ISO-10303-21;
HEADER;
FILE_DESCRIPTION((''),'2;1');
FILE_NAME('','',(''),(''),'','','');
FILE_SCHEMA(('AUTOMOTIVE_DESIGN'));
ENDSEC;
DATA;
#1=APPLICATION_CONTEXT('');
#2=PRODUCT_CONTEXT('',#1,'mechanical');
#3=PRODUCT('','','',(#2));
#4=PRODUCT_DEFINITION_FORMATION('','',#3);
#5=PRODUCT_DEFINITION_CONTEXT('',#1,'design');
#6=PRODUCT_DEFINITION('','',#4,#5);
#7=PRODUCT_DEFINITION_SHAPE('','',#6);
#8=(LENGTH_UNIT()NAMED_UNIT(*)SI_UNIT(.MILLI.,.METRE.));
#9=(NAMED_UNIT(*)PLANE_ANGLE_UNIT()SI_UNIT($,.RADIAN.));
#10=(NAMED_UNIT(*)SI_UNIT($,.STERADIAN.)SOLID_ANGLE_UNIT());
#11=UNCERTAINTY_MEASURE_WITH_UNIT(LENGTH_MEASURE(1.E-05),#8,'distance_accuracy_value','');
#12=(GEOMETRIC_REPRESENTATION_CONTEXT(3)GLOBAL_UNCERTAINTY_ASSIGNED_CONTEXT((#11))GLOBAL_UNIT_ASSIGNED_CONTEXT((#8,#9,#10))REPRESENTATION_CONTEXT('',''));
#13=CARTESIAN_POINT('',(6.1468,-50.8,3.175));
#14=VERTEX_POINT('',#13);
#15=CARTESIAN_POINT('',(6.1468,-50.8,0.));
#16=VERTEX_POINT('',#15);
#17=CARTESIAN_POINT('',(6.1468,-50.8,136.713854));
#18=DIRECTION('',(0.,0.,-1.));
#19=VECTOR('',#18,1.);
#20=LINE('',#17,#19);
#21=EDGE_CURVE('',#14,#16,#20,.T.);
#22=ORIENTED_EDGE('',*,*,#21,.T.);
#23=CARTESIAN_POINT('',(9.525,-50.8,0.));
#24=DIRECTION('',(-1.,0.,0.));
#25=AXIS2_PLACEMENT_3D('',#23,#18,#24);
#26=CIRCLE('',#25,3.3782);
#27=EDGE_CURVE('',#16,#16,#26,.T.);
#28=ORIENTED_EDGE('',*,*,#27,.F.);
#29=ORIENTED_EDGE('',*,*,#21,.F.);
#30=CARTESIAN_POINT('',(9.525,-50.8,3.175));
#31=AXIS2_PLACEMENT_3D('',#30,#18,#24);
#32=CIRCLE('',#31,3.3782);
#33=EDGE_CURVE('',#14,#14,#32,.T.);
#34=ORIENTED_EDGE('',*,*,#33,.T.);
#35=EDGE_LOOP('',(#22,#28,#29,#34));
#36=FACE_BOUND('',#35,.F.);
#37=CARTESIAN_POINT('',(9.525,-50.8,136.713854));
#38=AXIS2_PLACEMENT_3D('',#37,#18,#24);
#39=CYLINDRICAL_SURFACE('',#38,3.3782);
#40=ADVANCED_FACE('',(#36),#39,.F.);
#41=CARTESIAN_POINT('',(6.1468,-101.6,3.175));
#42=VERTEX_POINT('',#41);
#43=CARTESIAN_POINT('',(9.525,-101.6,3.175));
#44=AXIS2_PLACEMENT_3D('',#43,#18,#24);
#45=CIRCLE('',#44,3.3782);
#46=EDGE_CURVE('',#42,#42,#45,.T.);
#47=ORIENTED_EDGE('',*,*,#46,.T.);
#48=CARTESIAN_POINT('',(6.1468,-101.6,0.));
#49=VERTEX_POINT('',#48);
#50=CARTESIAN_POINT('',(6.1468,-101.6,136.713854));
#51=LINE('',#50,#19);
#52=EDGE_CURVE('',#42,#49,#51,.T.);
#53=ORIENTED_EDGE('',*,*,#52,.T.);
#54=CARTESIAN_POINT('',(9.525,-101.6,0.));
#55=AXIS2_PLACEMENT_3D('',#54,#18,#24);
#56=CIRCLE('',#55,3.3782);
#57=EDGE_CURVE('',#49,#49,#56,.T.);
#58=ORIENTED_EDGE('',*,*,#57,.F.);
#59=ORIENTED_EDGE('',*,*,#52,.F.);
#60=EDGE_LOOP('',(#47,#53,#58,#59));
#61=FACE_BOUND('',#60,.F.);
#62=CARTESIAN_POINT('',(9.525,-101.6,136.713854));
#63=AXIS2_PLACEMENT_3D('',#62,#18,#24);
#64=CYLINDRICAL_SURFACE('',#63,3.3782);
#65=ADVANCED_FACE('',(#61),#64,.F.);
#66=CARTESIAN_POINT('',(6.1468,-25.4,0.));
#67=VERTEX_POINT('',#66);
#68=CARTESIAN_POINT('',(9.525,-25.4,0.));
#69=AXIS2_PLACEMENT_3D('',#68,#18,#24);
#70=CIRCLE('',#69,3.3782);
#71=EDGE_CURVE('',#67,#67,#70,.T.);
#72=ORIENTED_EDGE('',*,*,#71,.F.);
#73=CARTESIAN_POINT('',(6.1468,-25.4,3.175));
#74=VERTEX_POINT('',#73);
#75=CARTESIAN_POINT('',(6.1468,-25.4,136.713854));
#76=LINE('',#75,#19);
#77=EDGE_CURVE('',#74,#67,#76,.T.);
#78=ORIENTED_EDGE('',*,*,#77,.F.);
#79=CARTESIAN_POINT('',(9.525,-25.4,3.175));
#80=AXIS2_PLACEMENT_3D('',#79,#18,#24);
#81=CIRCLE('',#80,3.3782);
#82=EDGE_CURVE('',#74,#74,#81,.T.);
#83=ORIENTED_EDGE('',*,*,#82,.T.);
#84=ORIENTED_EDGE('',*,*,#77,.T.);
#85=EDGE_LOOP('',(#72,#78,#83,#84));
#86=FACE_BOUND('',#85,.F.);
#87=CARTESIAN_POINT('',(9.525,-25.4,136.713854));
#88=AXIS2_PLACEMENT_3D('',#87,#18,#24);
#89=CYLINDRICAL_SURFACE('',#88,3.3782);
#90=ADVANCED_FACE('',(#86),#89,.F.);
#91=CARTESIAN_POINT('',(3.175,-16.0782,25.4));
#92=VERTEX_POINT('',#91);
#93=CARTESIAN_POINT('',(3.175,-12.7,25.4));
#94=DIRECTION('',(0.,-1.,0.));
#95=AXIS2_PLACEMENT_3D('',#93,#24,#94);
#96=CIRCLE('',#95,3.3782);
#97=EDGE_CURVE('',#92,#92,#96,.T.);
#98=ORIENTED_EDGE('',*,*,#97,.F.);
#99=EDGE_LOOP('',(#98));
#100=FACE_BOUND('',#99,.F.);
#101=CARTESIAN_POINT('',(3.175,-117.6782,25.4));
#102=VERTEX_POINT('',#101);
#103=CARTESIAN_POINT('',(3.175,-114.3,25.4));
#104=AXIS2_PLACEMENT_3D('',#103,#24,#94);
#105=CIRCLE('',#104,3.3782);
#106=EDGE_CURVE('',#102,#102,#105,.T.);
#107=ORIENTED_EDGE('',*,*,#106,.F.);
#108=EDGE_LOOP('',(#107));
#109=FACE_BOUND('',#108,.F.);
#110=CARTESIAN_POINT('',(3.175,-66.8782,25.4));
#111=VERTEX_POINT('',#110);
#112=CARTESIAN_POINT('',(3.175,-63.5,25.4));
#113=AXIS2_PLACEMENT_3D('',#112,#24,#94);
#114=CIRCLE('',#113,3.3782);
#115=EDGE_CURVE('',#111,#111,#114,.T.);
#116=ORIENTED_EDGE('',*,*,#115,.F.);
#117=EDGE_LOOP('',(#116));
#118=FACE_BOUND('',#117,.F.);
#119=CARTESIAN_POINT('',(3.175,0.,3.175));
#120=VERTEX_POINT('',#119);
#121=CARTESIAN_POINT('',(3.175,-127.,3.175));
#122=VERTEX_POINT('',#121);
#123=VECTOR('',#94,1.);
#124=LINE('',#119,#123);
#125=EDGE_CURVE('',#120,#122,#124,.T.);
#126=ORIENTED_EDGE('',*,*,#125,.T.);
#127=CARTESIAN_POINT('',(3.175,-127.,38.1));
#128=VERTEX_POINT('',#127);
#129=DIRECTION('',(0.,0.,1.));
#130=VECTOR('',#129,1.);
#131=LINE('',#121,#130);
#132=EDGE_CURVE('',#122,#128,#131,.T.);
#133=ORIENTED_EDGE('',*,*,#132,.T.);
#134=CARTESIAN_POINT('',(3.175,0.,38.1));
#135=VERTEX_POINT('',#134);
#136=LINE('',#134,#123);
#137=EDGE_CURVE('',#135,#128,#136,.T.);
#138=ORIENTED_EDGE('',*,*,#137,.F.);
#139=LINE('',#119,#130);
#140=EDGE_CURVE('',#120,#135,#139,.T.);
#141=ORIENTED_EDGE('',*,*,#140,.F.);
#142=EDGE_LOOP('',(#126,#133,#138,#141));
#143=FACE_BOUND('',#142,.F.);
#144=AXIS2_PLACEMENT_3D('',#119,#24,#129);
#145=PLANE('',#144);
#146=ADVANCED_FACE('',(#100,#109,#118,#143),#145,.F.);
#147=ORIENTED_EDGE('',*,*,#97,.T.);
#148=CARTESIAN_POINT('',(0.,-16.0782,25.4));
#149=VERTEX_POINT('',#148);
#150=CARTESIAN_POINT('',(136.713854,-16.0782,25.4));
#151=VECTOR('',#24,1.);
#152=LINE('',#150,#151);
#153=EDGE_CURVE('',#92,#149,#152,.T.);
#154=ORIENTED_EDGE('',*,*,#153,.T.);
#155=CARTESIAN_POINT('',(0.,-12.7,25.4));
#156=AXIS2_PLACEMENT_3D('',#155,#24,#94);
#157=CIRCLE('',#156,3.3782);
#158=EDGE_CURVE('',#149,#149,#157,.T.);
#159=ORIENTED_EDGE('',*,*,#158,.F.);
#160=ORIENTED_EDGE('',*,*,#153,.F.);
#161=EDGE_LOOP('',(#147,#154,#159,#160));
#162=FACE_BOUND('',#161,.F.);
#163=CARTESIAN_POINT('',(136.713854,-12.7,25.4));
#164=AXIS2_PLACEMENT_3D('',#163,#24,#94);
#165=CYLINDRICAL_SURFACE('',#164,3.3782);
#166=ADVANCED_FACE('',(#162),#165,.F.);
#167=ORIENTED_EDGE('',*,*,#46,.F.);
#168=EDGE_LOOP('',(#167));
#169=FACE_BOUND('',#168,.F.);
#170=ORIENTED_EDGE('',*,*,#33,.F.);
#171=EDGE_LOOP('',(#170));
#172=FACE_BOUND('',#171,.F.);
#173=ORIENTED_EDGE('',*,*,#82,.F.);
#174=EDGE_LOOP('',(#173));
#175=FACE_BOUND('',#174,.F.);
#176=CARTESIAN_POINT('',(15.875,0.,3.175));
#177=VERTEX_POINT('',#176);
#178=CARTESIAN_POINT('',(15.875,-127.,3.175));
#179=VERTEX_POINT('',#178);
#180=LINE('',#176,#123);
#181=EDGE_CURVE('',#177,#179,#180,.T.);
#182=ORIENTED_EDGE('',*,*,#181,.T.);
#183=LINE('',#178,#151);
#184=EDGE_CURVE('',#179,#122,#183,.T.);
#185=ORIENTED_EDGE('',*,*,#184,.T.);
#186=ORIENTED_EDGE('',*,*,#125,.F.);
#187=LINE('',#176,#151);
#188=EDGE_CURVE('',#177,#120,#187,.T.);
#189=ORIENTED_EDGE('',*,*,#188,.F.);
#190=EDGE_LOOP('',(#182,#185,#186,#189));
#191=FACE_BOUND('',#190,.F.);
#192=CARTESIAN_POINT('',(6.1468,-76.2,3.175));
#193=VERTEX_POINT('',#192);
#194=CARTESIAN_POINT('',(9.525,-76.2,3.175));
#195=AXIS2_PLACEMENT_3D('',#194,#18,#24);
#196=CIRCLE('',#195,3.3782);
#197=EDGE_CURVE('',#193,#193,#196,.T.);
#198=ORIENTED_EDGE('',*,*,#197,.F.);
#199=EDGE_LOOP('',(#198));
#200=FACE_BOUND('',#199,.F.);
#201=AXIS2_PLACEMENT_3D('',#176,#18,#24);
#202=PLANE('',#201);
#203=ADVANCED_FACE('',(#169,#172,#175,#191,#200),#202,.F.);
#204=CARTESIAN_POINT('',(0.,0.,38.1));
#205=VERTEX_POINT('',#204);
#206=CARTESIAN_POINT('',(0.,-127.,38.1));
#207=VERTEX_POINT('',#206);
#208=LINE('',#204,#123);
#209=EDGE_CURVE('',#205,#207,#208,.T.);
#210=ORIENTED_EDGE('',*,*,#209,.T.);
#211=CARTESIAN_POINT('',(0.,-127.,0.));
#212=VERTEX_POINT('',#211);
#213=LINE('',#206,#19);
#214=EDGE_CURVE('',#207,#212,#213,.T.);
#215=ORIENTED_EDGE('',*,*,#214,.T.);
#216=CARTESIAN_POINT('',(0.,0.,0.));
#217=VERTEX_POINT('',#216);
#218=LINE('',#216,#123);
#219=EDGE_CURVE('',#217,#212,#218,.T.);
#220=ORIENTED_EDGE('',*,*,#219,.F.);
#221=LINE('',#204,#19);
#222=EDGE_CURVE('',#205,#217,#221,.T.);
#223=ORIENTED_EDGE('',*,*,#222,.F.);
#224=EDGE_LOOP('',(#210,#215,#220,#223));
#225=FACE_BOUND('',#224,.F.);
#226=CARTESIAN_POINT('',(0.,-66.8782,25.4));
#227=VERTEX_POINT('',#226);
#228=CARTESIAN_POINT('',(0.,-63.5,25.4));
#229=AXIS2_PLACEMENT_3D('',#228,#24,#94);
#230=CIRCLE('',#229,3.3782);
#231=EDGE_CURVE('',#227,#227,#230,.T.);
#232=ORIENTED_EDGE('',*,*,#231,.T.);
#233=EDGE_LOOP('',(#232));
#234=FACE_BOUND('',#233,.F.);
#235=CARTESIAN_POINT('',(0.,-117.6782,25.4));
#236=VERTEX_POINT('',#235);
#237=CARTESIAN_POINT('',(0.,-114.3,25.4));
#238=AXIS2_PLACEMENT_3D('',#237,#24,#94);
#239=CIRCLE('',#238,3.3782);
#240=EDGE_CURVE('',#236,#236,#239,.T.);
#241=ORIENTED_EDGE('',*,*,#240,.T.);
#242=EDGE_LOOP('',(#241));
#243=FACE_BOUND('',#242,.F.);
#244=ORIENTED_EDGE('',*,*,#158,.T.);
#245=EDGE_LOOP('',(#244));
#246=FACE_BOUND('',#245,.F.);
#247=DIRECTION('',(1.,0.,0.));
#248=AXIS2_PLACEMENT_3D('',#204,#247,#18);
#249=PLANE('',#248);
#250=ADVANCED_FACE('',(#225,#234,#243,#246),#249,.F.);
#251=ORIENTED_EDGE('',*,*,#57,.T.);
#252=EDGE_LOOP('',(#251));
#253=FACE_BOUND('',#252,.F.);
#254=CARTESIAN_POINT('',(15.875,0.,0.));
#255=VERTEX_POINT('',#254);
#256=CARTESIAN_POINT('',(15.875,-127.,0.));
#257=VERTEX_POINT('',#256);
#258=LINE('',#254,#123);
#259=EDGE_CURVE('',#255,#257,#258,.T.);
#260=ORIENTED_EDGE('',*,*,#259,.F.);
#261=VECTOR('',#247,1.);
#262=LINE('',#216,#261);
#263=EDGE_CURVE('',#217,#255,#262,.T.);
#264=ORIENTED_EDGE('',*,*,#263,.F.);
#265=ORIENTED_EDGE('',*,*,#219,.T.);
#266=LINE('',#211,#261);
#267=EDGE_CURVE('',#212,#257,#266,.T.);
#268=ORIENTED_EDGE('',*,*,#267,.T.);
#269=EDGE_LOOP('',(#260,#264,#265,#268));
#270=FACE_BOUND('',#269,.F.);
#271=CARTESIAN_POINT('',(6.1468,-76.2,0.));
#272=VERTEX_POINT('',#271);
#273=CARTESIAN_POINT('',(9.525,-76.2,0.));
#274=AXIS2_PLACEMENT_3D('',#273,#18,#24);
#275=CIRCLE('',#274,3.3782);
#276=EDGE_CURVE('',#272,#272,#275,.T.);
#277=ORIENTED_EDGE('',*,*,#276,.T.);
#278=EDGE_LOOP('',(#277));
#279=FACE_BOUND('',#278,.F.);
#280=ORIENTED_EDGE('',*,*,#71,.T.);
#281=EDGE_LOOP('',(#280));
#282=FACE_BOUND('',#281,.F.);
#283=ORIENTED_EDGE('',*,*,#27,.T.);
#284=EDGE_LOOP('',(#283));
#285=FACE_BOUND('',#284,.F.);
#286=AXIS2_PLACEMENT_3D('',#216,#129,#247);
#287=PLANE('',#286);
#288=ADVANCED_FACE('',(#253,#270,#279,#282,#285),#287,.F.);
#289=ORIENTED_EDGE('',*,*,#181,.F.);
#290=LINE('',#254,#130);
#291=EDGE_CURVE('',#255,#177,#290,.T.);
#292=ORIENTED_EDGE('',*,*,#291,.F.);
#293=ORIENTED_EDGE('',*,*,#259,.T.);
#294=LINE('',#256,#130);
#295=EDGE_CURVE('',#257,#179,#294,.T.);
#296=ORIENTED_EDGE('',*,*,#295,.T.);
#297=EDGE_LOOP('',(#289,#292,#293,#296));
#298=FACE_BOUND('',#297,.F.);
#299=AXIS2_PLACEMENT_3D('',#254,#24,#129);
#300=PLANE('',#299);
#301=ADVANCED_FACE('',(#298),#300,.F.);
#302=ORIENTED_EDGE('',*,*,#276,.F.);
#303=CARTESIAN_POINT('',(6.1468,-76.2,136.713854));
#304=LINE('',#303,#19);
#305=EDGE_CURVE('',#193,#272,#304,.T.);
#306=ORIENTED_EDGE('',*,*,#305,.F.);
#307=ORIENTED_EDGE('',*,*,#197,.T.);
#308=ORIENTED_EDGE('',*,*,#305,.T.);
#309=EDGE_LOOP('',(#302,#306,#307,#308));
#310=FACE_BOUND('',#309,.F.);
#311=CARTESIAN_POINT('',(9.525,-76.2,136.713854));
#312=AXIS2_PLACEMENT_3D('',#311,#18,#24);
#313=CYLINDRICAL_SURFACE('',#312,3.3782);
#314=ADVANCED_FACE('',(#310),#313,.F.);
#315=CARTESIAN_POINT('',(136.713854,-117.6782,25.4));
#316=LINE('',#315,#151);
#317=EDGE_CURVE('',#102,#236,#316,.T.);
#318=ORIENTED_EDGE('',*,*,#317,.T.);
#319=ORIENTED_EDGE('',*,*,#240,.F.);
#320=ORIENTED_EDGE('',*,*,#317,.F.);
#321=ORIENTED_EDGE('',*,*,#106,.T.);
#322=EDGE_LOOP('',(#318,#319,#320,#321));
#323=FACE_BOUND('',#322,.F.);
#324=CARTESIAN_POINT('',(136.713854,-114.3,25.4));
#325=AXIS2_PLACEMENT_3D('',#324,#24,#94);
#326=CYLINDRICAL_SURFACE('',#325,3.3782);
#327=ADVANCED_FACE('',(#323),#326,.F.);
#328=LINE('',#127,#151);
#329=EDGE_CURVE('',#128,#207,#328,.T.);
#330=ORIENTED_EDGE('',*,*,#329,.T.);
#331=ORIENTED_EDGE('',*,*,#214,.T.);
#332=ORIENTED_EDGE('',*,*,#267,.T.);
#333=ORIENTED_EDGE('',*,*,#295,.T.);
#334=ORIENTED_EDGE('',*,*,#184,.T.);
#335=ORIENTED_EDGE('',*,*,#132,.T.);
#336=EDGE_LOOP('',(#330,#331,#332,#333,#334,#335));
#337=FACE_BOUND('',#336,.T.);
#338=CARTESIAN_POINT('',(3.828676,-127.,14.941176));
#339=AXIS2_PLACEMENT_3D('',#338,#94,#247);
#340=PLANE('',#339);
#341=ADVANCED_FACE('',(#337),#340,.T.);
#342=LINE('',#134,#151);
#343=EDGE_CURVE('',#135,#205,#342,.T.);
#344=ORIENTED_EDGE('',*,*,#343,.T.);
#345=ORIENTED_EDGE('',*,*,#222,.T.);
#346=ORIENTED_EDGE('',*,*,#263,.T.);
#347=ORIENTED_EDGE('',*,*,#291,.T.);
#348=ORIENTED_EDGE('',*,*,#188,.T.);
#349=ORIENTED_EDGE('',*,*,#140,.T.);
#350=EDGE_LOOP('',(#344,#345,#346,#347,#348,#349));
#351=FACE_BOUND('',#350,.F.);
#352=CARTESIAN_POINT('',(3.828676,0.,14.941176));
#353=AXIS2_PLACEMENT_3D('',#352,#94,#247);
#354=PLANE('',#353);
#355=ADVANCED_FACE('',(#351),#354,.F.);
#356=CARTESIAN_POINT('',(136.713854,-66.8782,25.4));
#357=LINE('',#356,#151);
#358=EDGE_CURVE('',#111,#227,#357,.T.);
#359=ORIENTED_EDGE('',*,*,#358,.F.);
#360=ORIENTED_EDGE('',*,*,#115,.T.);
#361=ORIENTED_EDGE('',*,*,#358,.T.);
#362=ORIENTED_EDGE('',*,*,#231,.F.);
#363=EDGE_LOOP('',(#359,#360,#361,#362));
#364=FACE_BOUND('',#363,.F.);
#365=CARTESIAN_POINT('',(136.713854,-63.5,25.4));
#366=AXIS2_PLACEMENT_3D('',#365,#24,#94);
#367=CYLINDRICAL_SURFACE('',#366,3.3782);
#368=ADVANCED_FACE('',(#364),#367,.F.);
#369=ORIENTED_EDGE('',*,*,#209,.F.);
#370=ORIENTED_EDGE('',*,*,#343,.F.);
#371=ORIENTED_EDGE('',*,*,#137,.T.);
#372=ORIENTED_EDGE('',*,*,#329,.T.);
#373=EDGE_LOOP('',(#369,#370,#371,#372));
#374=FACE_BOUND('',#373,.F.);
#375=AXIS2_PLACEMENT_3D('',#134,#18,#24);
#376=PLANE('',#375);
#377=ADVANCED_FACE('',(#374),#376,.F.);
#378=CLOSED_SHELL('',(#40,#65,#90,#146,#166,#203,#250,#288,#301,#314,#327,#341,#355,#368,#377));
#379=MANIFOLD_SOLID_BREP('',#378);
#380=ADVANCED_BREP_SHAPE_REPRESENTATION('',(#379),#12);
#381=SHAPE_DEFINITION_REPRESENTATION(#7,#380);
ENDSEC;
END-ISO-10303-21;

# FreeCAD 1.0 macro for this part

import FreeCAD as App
import Part
import Sketcher
Q = App.Units.Quantity

doc = App.newDocument("Part")
params = doc.addObject("Spreadsheet::Sheet", "Params")
for row, (alias, value) in enumerate([
    ("sketch1_width", "0.5 in"),
    ("sketch1_height", "1.5 in"),
    ("sketch1_width2", "0.625 in"),
    ("pad1_length", "5 in"),
    ("sketch2_diameter", "0.266 in"),
    ("hole_diameter", "0.266 in"),
    ("sketch3_diameter", "0.266 in"),
    ("hole2_diameter", "0.266 in"),
], start=1):
    params.set(f"A{row}", alias)
    params.set(f"B{row}", "=" + value)
    params.setAlias(f"B{row}", alias)

body = doc.addObject("PartDesign::Body", "Body")

# Sketch on XZ plane
sketch1 = body.newObject("Sketcher::SketchObject", "Sketch")
sketch1.AttachmentSupport = (doc.getObject("XZ_Plane"), [""])
sketch1.MapMode = "FlatFace"
sketch1.addGeometry(Part.LineSegment(App.Vector(0, 38.1, 0), App.Vector(0, 0, 0)), False)
sketch1.addGeometry(Part.LineSegment(App.Vector(0, 0, 0), App.Vector(15.9, 0, 0)), False)
sketch1.addGeometry(Part.LineSegment(App.Vector(15.9, 0, 0), App.Vector(15.9, 3.2, 0)), False)
sketch1.addGeometry(Part.LineSegment(App.Vector(15.9, 3.2, 0), App.Vector(3.2, 3.2, 0)), False)
sketch1.addGeometry(Part.LineSegment(App.Vector(3.2, 3.2, 0), App.Vector(3.2, 38.1, 0)), False)
sketch1.addGeometry(Part.LineSegment(App.Vector(3.2, 38.1, 0), App.Vector(0, 38.1, 0)), False)
sketch1.addConstraint(Sketcher.Constraint("Coincident", 0, 2, 1, 1))
sketch1.addConstraint(Sketcher.Constraint("Coincident", 1, 2, 2, 1))
sketch1.addConstraint(Sketcher.Constraint("Coincident", 2, 2, 3, 1))
sketch1.addConstraint(Sketcher.Constraint("Coincident", 3, 2, 4, 1))
sketch1.addConstraint(Sketcher.Constraint("Coincident", 4, 2, 5, 1))
sketch1.addConstraint(Sketcher.Constraint("Coincident", 5, 2, 0, 1))
sketch1.addConstraint(Sketcher.Constraint("Vertical", 0))
sketch1.addConstraint(Sketcher.Constraint("Horizontal", 1))
sketch1.addConstraint(Sketcher.Constraint("Vertical", 2))
sketch1.addConstraint(Sketcher.Constraint("Horizontal", 3))
sketch1.addConstraint(Sketcher.Constraint("Vertical", 4))
sketch1.addConstraint(Sketcher.Constraint("Horizontal", 5))
sketch1.addConstraint(Sketcher.Constraint("Coincident", 0, 2, -1, 1))
sketch1.addConstraint(Sketcher.Constraint("Equal", 5, 2))
sketch1.addConstraint(Sketcher.Constraint("DistanceX", 3, 2, 3, 1, Q("0.5 in")))
sketch1.addConstraint(Sketcher.Constraint("DistanceY", 0, 2, 0, 1, Q("1.5 in")))
sketch1.addConstraint(Sketcher.Constraint("DistanceX", 1, 1, 1, 2, Q("0.625 in")))
sketch1.setExpression("Constraints[14]", "Params.sketch1_width")
sketch1.setExpression("Constraints[15]", "Params.sketch1_height")
sketch1.setExpression("Constraints[16]", "Params.sketch1_width2")
pad1 = body.newObject("PartDesign::Pad", "Pad")
pad1.Profile = sketch1
pad1.setExpression("Length", "Params.pad1_length")

# Sketch on YZ plane
sketch2 = body.newObject("Sketcher::SketchObject", "Sketch001")
sketch2.AttachmentSupport = (doc.getObject("YZ_Plane"), [""])
sketch2.MapMode = "FlatFace"
sketch2.AttachmentOffset = App.Placement(App.Vector(0, 0, 0.125 * 25.4), App.Rotation())
sketch2.addGeometry(Part.Circle(App.Vector(-114.3, 25.4, 0), App.Vector(0, 0, 1), 3.4), False)
sketch2.addGeometry(Part.Circle(App.Vector(-63.5, 25.4, 0), App.Vector(0, 0, 1), 3.4), False)
sketch2.addGeometry(Part.Circle(App.Vector(-12.7, 25.4, 0), App.Vector(0, 0, 1), 3.4), False)
sketch2.addConstraint(Sketcher.Constraint("Equal", 0, 1))
sketch2.addConstraint(Sketcher.Constraint("Equal", 1, 2))
sketch2.addConstraint(Sketcher.Constraint("Horizontal", 0, 3, 1, 3))
sketch2.addConstraint(Sketcher.Constraint("Horizontal", 1, 3, 2, 3))
sketch2.addConstraint(Sketcher.Constraint("Diameter", 0, Q("0.266 in")))
sketch2.addConstraint(Sketcher.Constraint("DistanceY", -1, 1, 0, 3, Q("1 in")))
sketch2.addConstraint(Sketcher.Constraint("DistanceX", 0, 3, 1, 3, Q("2 in")))
sketch2.addConstraint(Sketcher.Constraint("DistanceX", 1, 3, 2, 3, Q("2 in")))
sketch2.addConstraint(Sketcher.Constraint("DistanceX", 0, 3, -1, 1, Q("4.5 in")))
sketch2.setExpression("Constraints[4]", "Params.sketch2_diameter")
doc.recompute()
hole = body.newObject("PartDesign::Hole", "Hole")
hole.Profile = sketch2
hole.ThreadType = "None"
hole.setExpression("Diameter", "Params.hole_diameter")
hole.DepthType = "ThroughAll"

# Sketch on XY plane
sketch3 = body.newObject("Sketcher::SketchObject", "Sketch002")
sketch3.AttachmentSupport = (doc.getObject("XY_Plane"), [""])
sketch3.MapMode = "FlatFace"
sketch3.AttachmentOffset = App.Placement(App.Vector(0, 0, 0.125 * 25.4), App.Rotation())
sketch3.addGeometry(Part.Circle(App.Vector(9.5, -101.6, 0), App.Vector(0, 0, 1), 3.4), False)
sketch3.addGeometry(Part.Circle(App.Vector(9.5, -25.4, 0), App.Vector(0, 0, 1), 3.4), False)
sketch3.addGeometry(Part.Circle(App.Vector(9.5, -76.2, 0), App.Vector(0, 0, 1), 3.4), False)
sketch3.addGeometry(Part.Circle(App.Vector(9.5, -50.8, 0), App.Vector(0, 0, 1), 3.4), False)
sketch3.addConstraint(Sketcher.Constraint("Equal", 0, 1))
sketch3.addConstraint(Sketcher.Constraint("Equal", 1, 2))
sketch3.addConstraint(Sketcher.Constraint("Equal", 2, 3))
sketch3.addConstraint(Sketcher.Constraint("Vertical", 0, 3, 1, 3))
sketch3.addConstraint(Sketcher.Constraint("Vertical", 1, 3, 2, 3))
sketch3.addConstraint(Sketcher.Constraint("Vertical", 2, 3, 3, 3))
sketch3.addConstraint(Sketcher.Constraint("Diameter", 0, Q("0.266 in")))
sketch3.addConstraint(Sketcher.Constraint("DistanceY", 0, 3, -1, 1, Q("4 in")))
sketch3.addConstraint(Sketcher.Constraint("DistanceY", 1, 3, -1, 1, Q("1 in")))
sketch3.addConstraint(Sketcher.Constraint("DistanceY", 2, 3, -1, 1, Q("3 in")))
sketch3.addConstraint(Sketcher.Constraint("DistanceY", 3, 3, -1, 1, Q("2 in")))
sketch3.addConstraint(Sketcher.Constraint("DistanceX", -1, 1, 0, 3, Q("0.375 in")))
sketch3.setExpression("Constraints[6]", "Params.sketch3_diameter")
doc.recompute()
hole2 = body.newObject("PartDesign::Hole", "Hole001")
hole2.Profile = sketch3
hole2.ThreadType = "None"
hole2.setExpression("Diameter", "Params.hole2_diameter")
hole2.DepthType = "ThroughAll"

doc.recompute()
